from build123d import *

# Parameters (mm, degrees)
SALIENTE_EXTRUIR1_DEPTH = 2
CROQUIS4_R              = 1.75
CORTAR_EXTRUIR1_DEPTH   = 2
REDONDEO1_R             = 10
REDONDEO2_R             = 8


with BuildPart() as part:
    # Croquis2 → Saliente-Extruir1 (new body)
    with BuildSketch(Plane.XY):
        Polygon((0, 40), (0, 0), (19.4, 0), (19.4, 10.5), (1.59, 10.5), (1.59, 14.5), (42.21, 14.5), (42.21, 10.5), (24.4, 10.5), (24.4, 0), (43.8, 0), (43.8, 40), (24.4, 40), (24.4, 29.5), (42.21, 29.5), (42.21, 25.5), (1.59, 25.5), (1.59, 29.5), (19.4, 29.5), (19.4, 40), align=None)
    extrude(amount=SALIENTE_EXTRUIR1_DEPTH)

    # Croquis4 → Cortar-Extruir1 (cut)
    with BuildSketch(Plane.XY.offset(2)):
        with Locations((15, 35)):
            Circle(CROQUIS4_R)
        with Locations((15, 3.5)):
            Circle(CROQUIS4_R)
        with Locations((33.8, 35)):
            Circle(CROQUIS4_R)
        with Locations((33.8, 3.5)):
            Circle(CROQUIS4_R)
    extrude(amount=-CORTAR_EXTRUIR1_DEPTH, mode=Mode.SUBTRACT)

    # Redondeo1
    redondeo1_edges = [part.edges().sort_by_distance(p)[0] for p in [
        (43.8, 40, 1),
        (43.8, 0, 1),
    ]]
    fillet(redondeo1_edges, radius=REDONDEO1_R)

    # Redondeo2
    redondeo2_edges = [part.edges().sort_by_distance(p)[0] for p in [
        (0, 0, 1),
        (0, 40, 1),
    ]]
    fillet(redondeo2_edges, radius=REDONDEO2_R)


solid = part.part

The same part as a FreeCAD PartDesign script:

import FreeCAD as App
import Part
import Sketcher

V = App.Vector
Q = App.Units.Quantity


def edges_at(feature, points):
    """Names of the edges that pass closest to the given points."""
    edges = feature.Shape.Edges
    near = lambda p: min(range(len(edges)), key=lambda i: edges[i].distToShape(Part.Vertex(*p))[0])
    return sorted({f"Edge{near(p) + 1}" for p in points})

doc = App.newDocument("Part")
body = doc.addObject("PartDesign::Body", "Body")

sketch1 = body.newObject("Sketcher::SketchObject", "Sketch")
sketch1.AttachmentSupport = (doc.getObject("XY_Plane"), [""])
sketch1.MapMode = "FlatFace"
sketch1.addGeometry(Part.LineSegment(V(0, 40, 0), V(0, 0, 0)), False)
sketch1.addGeometry(Part.LineSegment(V(0, 0, 0), V(19.4, 0, 0)), False)
sketch1.addGeometry(Part.LineSegment(V(19.4, 0, 0), V(19.4, 10.5, 0)), False)
sketch1.addGeometry(Part.LineSegment(V(19.4, 10.5, 0), V(1.6, 10.5, 0)), False)
sketch1.addGeometry(Part.LineSegment(V(1.6, 10.5, 0), V(1.6, 14.5, 0)), False)
sketch1.addGeometry(Part.LineSegment(V(1.6, 14.5, 0), V(42.2, 14.5, 0)), False)
sketch1.addGeometry(Part.LineSegment(V(42.2, 14.5, 0), V(42.2, 10.5, 0)), False)
sketch1.addGeometry(Part.LineSegment(V(42.2, 10.5, 0), V(24.4, 10.5, 0)), False)
sketch1.addGeometry(Part.LineSegment(V(24.4, 10.5, 0), V(24.4, 0, 0)), False)
sketch1.addGeometry(Part.LineSegment(V(24.4, 0, 0), V(43.8, 0, 0)), False)
sketch1.addGeometry(Part.LineSegment(V(43.8, 0, 0), V(43.8, 40, 0)), False)
sketch1.addGeometry(Part.LineSegment(V(43.8, 40, 0), V(24.4, 40, 0)), False)
sketch1.addGeometry(Part.LineSegment(V(24.4, 40, 0), V(24.4, 29.5, 0)), False)
sketch1.addGeometry(Part.LineSegment(V(24.4, 29.5, 0), V(42.2, 29.5, 0)), False)
sketch1.addGeometry(Part.LineSegment(V(42.2, 29.5, 0), V(42.2, 25.5, 0)), False)
sketch1.addGeometry(Part.LineSegment(V(42.2, 25.5, 0), V(1.6, 25.5, 0)), False)
sketch1.addGeometry(Part.LineSegment(V(1.6, 25.5, 0), V(1.6, 29.5, 0)), False)
sketch1.addGeometry(Part.LineSegment(V(1.6, 29.5, 0), V(19.4, 29.5, 0)), False)
sketch1.addGeometry(Part.LineSegment(V(19.4, 29.5, 0), V(19.4, 40, 0)), False)
sketch1.addGeometry(Part.LineSegment(V(19.4, 40, 0), V(0, 40, 0)), False)
sketch1.addConstraint(Sketcher.Constraint("Coincident", 0, 2, 1, 1))
sketch1.addConstraint(Sketcher.Constraint("Coincident", 1, 2, 2, 1))
sketch1.addConstraint(Sketcher.Constraint("Coincident", 2, 2, 3, 1))
sketch1.addConstraint(Sketcher.Constraint("Coincident", 3, 2, 4, 1))
sketch1.addConstraint(Sketcher.Constraint("Coincident", 4, 2, 5, 1))
sketch1.addConstraint(Sketcher.Constraint("Coincident", 5, 2, 6, 1))
sketch1.addConstraint(Sketcher.Constraint("Coincident", 6, 2, 7, 1))
sketch1.addConstraint(Sketcher.Constraint("Coincident", 7, 2, 8, 1))
sketch1.addConstraint(Sketcher.Constraint("Coincident", 8, 2, 9, 1))
sketch1.addConstraint(Sketcher.Constraint("Coincident", 9, 2, 10, 1))
sketch1.addConstraint(Sketcher.Constraint("Coincident", 10, 2, 11, 1))
sketch1.addConstraint(Sketcher.Constraint("Coincident", 11, 2, 12, 1))
sketch1.addConstraint(Sketcher.Constraint("Coincident", 12, 2, 13, 1))
sketch1.addConstraint(Sketcher.Constraint("Coincident", 13, 2, 14, 1))
sketch1.addConstraint(Sketcher.Constraint("Coincident", 14, 2, 15, 1))
sketch1.addConstraint(Sketcher.Constraint("Coincident", 15, 2, 16, 1))
sketch1.addConstraint(Sketcher.Constraint("Coincident", 16, 2, 17, 1))
sketch1.addConstraint(Sketcher.Constraint("Coincident", 17, 2, 18, 1))
sketch1.addConstraint(Sketcher.Constraint("Coincident", 18, 2, 19, 1))
sketch1.addConstraint(Sketcher.Constraint("Coincident", 19, 2, 0, 1))
sketch1.addConstraint(Sketcher.Constraint("Vertical", 0))
sketch1.addConstraint(Sketcher.Constraint("Horizontal", 1))
sketch1.addConstraint(Sketcher.Constraint("Vertical", 2))
sketch1.addConstraint(Sketcher.Constraint("Horizontal", 3))
sketch1.addConstraint(Sketcher.Constraint("Vertical", 4))
sketch1.addConstraint(Sketcher.Constraint("Horizontal", 5))
sketch1.addConstraint(Sketcher.Constraint("Vertical", 6))
sketch1.addConstraint(Sketcher.Constraint("Horizontal", 7))
sketch1.addConstraint(Sketcher.Constraint("Vertical", 8))
sketch1.addConstraint(Sketcher.Constraint("Horizontal", 9))
sketch1.addConstraint(Sketcher.Constraint("Vertical", 10))
sketch1.addConstraint(Sketcher.Constraint("Horizontal", 11))
sketch1.addConstraint(Sketcher.Constraint("Vertical", 12))
sketch1.addConstraint(Sketcher.Constraint("Horizontal", 13))
sketch1.addConstraint(Sketcher.Constraint("Vertical", 14))
sketch1.addConstraint(Sketcher.Constraint("Horizontal", 15))
sketch1.addConstraint(Sketcher.Constraint("Vertical", 16))
sketch1.addConstraint(Sketcher.Constraint("Horizontal", 17))
sketch1.addConstraint(Sketcher.Constraint("Vertical", 18))
sketch1.addConstraint(Sketcher.Constraint("Horizontal", 19))
sketch1.addConstraint(Sketcher.Constraint("Coincident", 0, 2, -1, 1))
sketch1.addConstraint(Sketcher.Constraint("PointOnObject", 8, 2, -1))
sketch1.addConstraint(Sketcher.Constraint("Horizontal", 3, 2, 6, 2))
sketch1.addConstraint(Sketcher.Constraint("Horizontal", 13, 2, 16, 2))
sketch1.addConstraint(Sketcher.Constraint("Horizontal", 11, 2, 18, 2))
sketch1.addConstraint(Sketcher.Constraint("Vertical", 8, 2, 11, 2))
sketch1.addConstraint(Sketcher.Constraint("Vertical", 6, 2, 13, 2))
sketch1.addConstraint(Sketcher.Constraint("Vertical", 4, 2, 15, 2))
sketch1.addConstraint(Sketcher.Constraint("Vertical", 2, 2, 17, 2))
sketch1.addConstraint(Sketcher.Constraint("Equal", 3, 7))
sketch1.addConstraint(Sketcher.Constraint("Equal", 1, 9))
sketch1.addConstraint(Sketcher.Constraint("Equal", 8, 12))
sketch1.addConstraint(Sketcher.Constraint("Equal", 6, 14))
sketch1.addConstraint(Sketcher.Constraint("DistanceY", 0, 2, 0, 1, Q("40 mm")))
sketch1.addConstraint(Sketcher.Constraint("DistanceY", 4, 1, 4, 2, Q("4 mm")))
sketch1.addConstraint(Sketcher.Constraint("DistanceX", 1, 1, 1, 2, Q("19.4 mm")))
sketch1.addConstraint(Sketcher.Constraint("DistanceY", 2, 1, 2, 2, Q("10.5 mm")))
sketch1.addConstraint(Sketcher.Constraint("DistanceX", 2, 2, 7, 2, Q("5 mm")))
sketch1.addConstraint(Sketcher.Constraint("DistanceX", 3, 2, 3, 1, Q("17.81 mm")))
pad1 = body.newObject("PartDesign::Pad", "Pad")
pad1.Profile = sketch1
pad1.Length = 2

sketch2 = body.newObject("Sketcher::SketchObject", "Sketch001")
sketch2.AttachmentSupport = (doc.getObject("XY_Plane"), [""])
sketch2.MapMode = "FlatFace"
sketch2.AttachmentOffset = App.Placement(V(0, 0, 2), App.Rotation())
sketch2.addGeometry(Part.Circle(V(15, 35, 0), V(0, 0, 1), 1.8), False)
sketch2.addGeometry(Part.Circle(V(15, 3.5, 0), V(0, 0, 1), 1.8), False)
sketch2.addGeometry(Part.Circle(V(33.8, 35, 0), V(0, 0, 1), 1.8), False)
sketch2.addGeometry(Part.Circle(V(33.8, 3.5, 0), V(0, 0, 1), 1.8), False)
sketch2.addConstraint(Sketcher.Constraint("Equal", 0, 1))
sketch2.addConstraint(Sketcher.Constraint("Equal", 1, 2))
sketch2.addConstraint(Sketcher.Constraint("Equal", 2, 3))
sketch2.addConstraint(Sketcher.Constraint("Horizontal", 0, 3, 2, 3))
sketch2.addConstraint(Sketcher.Constraint("Horizontal", 1, 3, 3, 3))
sketch2.addConstraint(Sketcher.Constraint("Vertical", 0, 3, 1, 3))
sketch2.addConstraint(Sketcher.Constraint("Vertical", 2, 3, 3, 3))
sketch2.addConstraint(Sketcher.Constraint("Diameter", 0, Q("3.5 mm")))
sketch2.addConstraint(Sketcher.Constraint("DistanceX", -1, 1, 0, 3, Q("15 mm")))
sketch2.addConstraint(Sketcher.Constraint("DistanceY", -1, 1, 0, 3, Q("35 mm")))
sketch2.addConstraint(Sketcher.Constraint("DistanceY", -1, 1, 1, 3, Q("3.5 mm")))
sketch2.addConstraint(Sketcher.Constraint("DistanceX", -1, 1, 2, 3, Q("33.8 mm")))
pocket1 = body.newObject("PartDesign::Pocket", "Pocket")
pocket1.Profile = sketch2
pocket1.Length = 2
doc.recompute()

fillet = body.newObject("PartDesign::Fillet", "Fillet")
fillet.Base = (pocket1, edges_at(pocket1, [(43.8, 40, 1), (43.8, 0, 1)]))
fillet.Radius = 10
doc.recompute()

fillet2 = body.newObject("PartDesign::Fillet", "Fillet001")
fillet2.Base = (fillet, edges_at(fillet, [(0, 0, 1), (0, 40, 1)]))
fillet2.Radius = 8

doc.recompute()
